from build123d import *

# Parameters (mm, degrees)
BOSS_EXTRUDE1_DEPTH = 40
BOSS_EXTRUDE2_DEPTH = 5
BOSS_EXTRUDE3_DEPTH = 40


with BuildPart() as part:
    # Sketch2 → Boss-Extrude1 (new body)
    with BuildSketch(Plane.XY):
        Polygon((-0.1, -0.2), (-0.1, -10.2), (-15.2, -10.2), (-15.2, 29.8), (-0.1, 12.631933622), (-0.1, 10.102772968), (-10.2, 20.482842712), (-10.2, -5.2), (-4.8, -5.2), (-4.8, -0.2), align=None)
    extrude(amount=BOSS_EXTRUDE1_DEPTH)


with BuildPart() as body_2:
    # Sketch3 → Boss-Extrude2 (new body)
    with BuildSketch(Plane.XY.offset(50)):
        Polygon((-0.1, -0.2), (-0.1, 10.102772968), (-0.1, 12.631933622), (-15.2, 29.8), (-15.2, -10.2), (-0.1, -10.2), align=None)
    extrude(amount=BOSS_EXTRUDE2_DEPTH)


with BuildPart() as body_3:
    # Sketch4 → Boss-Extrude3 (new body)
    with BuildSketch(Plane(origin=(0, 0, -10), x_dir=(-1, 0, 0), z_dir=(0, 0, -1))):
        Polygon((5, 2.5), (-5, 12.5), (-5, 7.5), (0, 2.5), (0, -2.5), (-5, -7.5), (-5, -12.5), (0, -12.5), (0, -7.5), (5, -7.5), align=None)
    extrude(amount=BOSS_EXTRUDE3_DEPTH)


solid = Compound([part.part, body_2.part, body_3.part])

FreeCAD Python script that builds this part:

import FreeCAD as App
import Part
import Sketcher
Q = App.Units.Quantity


def add_polygon(sketch, points):
    """Adds a closed chain of lines whose ends are joined by coincident constraints."""
    first, n = sketch.GeometryCount, len(points)
    for a, b in zip(points, points[1:] + points[:1]):
        sketch.addGeometry(Part.LineSegment(App.Vector(*a, 0), App.Vector(*b, 0)), False)
    for i in range(n):
        sketch.addConstraint(Sketcher.Constraint("Coincident", first + i, 2, first + (i + 1) % n, 1))

doc = App.newDocument("Part")
body = doc.addObject("PartDesign::Body", "Body")

# Sketch on XY plane
sketch1 = doc.addObject("Sketcher::SketchObject", "Sketch")
body.addObject(sketch1)
sketch1.AttachmentSupport = (doc.XY_Plane, [""])
sketch1.MapMode = "FlatFace"
add_polygon(sketch1, [(-0.1, -10.2), (-0.1, -0.2), (-4.8, -0.2), (-4.8, -5.2), (-10.2, -5.2), (-10.2, 20.5), (-0.1, 10.1), (-0.1, 12.6), (-15.2, 29.8), (-15.2, -10.2)])  # lines 0-9
sketch1.addConstraint([
    Sketcher.Constraint("Vertical", 0),
    Sketcher.Constraint("Horizontal", 1),
    Sketcher.Constraint("Vertical", 2),
    Sketcher.Constraint("Horizontal", 3),
    Sketcher.Constraint("Vertical", 4),
    Sketcher.Constraint("Vertical", 6),
    Sketcher.Constraint("Vertical", 8),
    Sketcher.Constraint("Horizontal", 9),
    Sketcher.Constraint("Vertical", 0, 2, 5, 2),
    Sketcher.Constraint("DistanceY", 0, 1, 0, 2, Q("10 mm")),
    Sketcher.Constraint("DistanceY", 2, 2, 2, 1, Q("5 mm")),
    Sketcher.Constraint("DistanceY", 8, 2, 8, 1, Q("40 mm")),
    Sketcher.Constraint("DistanceX", 1, 2, 1, 1, Q("4.7 mm")),
    Sketcher.Constraint("DistanceX", 3, 2, 3, 1, Q("5.4 mm")),
    Sketcher.Constraint("DistanceX", 9, 1, 9, 2, Q("15.1 mm")),
    Sketcher.Constraint("DistanceX", 0, 2, -1, 1, Q("0.1 mm")),
    Sketcher.Constraint("DistanceY", 0, 2, -1, 1, Q("0.2 mm")),
    Sketcher.Constraint("DistanceY", 6, 1, 6, 2, Q("2.529161 mm")),
    Sketcher.Constraint("Distance", 5, Q("14.48295 mm")),
    Sketcher.Constraint("Distance", 7, Q("22.863781 mm")),
])
pad1 = doc.addObject("PartDesign::Pad", "Pad")
body.addObject(pad1)
pad1.Profile = sketch1
pad1.Length = 40
body2 = doc.addObject("PartDesign::Body", "Body001")

# Sketch on XY plane
sketch2 = doc.addObject("Sketcher::SketchObject", "Sketch001")
body2.addObject(sketch2)
sketch2.AttachmentSupport = (doc.getObject("XY_Plane001"), [""])
sketch2.MapMode = "FlatFace"
sketch2.AttachmentOffset = App.Placement(App.Vector(0, 0, 50), App.Rotation())
add_polygon(sketch2, [(0, 13), (-15, 30), (-15, -10), (0, -10)])  # lines 0-3
sketch2.addConstraint([
    Sketcher.Constraint("Vertical", 1),
    Sketcher.Constraint("Horizontal", 2),
    Sketcher.Constraint("Vertical", 3),
    Sketcher.Constraint("DistanceY", 1, 2, 1, 1, Q("40 mm")),
    Sketcher.Constraint("DistanceX", 2, 1, 2, 2, Q("15.1 mm")),
    Sketcher.Constraint("DistanceX", 0, 2, -1, 1, Q("15.2 mm")),
    Sketcher.Constraint("DistanceY", -1, 1, 0, 2, Q("29.8 mm")),
    Sketcher.Constraint("Distance", 0, Q("22.863781 mm")),
])
pad2 = doc.addObject("PartDesign::Pad", "Pad001")
body2.addObject(pad2)
pad2.Profile = sketch2
pad2.Length = 5
body3 = doc.addObject("PartDesign::Body", "Body002")

# Sketch on XY plane
sketch3 = doc.addObject("Sketcher::SketchObject", "Sketch002")
body3.addObject(sketch3)
sketch3.AttachmentSupport = (doc.getObject("XY_Plane002"), [""])
sketch3.MapMode = "FlatFace"
sketch3.AttachmentOffset = App.Placement(App.Vector(0, 0, -10), App.Rotation())
add_polygon(sketch3, [(-5, 2), (5, 12), (5, 8), (0, 2), (0, -2), (5, -8), (5, -12), (0, -12), (0, -8), (-5, -8)])  # lines 0-9
sketch3.addConstraint([
    Sketcher.Constraint("Vertical", 1),
    Sketcher.Constraint("Vertical", 3),
    Sketcher.Constraint("Vertical", 5),
    Sketcher.Constraint("Horizontal", 6),
    Sketcher.Constraint("Vertical", 7),
    Sketcher.Constraint("Horizontal", 8),
    Sketcher.Constraint("Vertical", 9),
    Sketcher.Constraint("Symmetric", 2, 2, 3, 2, -1, 1),
    Sketcher.Constraint("Symmetric", 1, 2, 8, 2, -1, 1),
    Sketcher.Constraint("Symmetric", 4, 2, 8, 2, -2),
    Sketcher.Constraint("PointOnObject", 6, 2, -2),
    Sketcher.Constraint("Parallel", 0, 2),
    Sketcher.Constraint("Perpendicular", 2, 4),
    Sketcher.Constraint("Horizontal", 2, 2, 9, 2),
    Sketcher.Constraint("Equal", 1, 3),
    Sketcher.Constraint("Equal", 3, 5),
    Sketcher.Constraint("DistanceX", 6, 2, 6, 1, Q("5 mm")),
])
pad3 = doc.addObject("PartDesign::Pad", "Pad002")
body3.addObject(pad3)
pad3.Profile = sketch3
pad3.Length = 40
pad3.Reversed = True

doc.recompute()
